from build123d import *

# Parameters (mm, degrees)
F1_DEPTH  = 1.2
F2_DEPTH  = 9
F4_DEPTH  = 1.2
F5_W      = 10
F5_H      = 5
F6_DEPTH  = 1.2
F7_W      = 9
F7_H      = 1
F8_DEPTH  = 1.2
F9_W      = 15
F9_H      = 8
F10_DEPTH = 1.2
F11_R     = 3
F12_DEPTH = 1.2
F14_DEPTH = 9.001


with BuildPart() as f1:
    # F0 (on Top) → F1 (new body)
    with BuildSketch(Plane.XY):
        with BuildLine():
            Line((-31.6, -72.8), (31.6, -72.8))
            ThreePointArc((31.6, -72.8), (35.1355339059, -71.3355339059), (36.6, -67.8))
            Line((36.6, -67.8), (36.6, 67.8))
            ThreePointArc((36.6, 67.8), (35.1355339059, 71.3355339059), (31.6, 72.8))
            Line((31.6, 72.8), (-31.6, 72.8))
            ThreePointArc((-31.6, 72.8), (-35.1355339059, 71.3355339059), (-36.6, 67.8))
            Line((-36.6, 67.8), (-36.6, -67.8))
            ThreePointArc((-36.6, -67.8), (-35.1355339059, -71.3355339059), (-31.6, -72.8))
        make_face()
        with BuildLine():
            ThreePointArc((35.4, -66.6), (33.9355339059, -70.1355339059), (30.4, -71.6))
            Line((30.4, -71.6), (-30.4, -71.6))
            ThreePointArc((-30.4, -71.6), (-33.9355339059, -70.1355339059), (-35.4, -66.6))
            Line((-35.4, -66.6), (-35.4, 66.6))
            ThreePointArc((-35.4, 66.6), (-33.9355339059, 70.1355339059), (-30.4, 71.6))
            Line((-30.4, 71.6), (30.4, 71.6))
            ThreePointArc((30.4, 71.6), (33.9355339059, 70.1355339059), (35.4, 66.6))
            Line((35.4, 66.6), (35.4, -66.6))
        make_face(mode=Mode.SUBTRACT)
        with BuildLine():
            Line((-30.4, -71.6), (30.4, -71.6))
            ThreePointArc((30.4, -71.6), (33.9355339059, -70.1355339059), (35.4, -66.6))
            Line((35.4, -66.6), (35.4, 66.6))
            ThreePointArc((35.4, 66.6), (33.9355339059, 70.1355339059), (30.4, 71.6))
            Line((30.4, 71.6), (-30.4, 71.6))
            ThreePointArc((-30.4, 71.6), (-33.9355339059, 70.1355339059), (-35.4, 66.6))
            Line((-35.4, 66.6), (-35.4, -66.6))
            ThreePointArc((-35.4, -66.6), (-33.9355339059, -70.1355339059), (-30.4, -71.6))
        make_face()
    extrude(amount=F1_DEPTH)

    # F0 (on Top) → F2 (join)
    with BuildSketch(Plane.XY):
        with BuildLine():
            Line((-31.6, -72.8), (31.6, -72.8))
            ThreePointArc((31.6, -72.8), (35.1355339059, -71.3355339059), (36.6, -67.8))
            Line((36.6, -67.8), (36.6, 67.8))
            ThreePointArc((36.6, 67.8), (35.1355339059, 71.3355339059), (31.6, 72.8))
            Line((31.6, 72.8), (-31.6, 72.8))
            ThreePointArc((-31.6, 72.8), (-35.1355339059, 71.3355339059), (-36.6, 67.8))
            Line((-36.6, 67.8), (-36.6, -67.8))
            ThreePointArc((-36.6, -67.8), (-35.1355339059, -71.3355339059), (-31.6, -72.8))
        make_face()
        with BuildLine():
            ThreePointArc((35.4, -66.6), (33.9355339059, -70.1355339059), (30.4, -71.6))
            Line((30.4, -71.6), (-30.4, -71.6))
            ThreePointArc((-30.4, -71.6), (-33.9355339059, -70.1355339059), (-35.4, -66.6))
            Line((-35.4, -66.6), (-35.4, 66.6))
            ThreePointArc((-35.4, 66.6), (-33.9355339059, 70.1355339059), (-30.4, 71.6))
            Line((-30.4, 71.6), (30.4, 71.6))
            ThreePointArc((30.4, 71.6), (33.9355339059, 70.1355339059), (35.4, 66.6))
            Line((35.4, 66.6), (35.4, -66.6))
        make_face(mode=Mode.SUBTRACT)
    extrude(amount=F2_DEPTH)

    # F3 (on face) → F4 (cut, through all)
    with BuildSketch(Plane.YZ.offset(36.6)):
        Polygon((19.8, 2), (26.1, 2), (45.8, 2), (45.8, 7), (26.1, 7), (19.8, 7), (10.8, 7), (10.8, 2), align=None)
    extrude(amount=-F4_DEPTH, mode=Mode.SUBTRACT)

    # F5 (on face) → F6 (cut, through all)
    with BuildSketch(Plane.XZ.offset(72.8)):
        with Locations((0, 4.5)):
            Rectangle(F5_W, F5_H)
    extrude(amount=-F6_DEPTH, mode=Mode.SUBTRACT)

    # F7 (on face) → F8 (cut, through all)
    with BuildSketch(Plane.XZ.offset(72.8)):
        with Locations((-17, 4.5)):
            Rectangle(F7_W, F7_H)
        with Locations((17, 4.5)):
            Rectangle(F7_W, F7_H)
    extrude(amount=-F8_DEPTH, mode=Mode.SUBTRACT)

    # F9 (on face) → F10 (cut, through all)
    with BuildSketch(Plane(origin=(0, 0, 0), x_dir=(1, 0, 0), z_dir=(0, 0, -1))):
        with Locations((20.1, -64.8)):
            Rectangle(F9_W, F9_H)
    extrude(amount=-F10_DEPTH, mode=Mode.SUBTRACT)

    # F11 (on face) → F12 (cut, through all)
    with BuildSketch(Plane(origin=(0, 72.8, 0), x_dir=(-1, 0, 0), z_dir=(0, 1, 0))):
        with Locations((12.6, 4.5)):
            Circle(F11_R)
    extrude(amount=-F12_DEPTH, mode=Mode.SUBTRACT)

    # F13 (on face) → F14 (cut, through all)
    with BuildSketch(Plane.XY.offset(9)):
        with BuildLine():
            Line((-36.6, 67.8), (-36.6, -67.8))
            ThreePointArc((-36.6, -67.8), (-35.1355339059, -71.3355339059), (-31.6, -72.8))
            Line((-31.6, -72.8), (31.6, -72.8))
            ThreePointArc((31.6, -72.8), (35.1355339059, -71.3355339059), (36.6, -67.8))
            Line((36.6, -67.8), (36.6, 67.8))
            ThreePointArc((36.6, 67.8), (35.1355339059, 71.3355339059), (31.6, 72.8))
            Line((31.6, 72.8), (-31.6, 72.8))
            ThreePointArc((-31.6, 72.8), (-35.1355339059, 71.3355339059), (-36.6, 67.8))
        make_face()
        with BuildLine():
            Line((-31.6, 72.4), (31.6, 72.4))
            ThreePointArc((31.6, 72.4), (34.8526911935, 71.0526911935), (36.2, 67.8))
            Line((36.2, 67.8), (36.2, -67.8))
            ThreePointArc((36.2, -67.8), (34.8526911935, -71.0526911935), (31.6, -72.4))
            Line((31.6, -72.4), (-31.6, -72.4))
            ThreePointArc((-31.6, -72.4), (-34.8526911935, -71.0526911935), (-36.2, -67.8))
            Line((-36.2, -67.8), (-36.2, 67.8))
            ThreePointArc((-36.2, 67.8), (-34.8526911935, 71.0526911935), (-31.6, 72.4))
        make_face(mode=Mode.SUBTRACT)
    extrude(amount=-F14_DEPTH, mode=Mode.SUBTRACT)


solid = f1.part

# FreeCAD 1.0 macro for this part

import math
import FreeCAD as App
import Part
import Sketcher

V = App.Vector


def add_polygon(sketch, points):
    """Adds a closed chain of lines whose ends are joined by coincident constraints."""
    first, n = sketch.GeometryCount, len(points)
    for a, b in zip(points, points[1:] + points[:1]):
        sketch.addGeometry(Part.LineSegment(App.Vector(*a, 0), App.Vector(*b, 0)), False)
    for i in range(n):
        sketch.addConstraint(Sketcher.Constraint("Coincident", first + i, 2, first + (i + 1) % n, 1))

doc = App.newDocument("Part")
body = doc.addObject("PartDesign::Body", "Body")

# Sketch on XY plane
sketch1 = body.newObject("Sketcher::SketchObject", "Sketch")
sketch1.AttachmentSupport = (doc.getObject("XY_Plane"), [""])
sketch1.MapMode = "FlatFace"
sketch1.addGeometry(Part.LineSegment(V(-32, -73, 0), V(32, -73, 0)), False)
sketch1.addGeometry(Part.ArcOfCircle(Part.Circle(V(32, -68, 0), V(0, 0, 1), 5), math.radians(-90), math.radians(0)), False)
sketch1.addGeometry(Part.LineSegment(V(37, -68, 0), V(37, 68, 0)), False)
sketch1.addGeometry(Part.ArcOfCircle(Part.Circle(V(32, 68, 0), V(0, 0, 1), 5), math.radians(0), math.radians(90)), False)
sketch1.addGeometry(Part.LineSegment(V(32, 73, 0), V(-32, 73, 0)), False)
sketch1.addGeometry(Part.ArcOfCircle(Part.Circle(V(-32, 68, 0), V(0, 0, 1), 5), math.radians(90), math.radians(180)), False)
sketch1.addGeometry(Part.LineSegment(V(-37, 68, 0), V(-37, -68, 0)), False)
sketch1.addGeometry(Part.ArcOfCircle(Part.Circle(V(-32, -68, 0), V(0, 0, 1), 5), math.radians(180), math.radians(270)), False)
sketch1.addConstraint(Sketcher.Constraint("Tangent", 0, 2, 1, 1))
sketch1.addConstraint(Sketcher.Constraint("Tangent", 1, 2, 2, 1))
sketch1.addConstraint(Sketcher.Constraint("Tangent", 2, 2, 3, 1))
sketch1.addConstraint(Sketcher.Constraint("Tangent", 3, 2, 4, 1))
sketch1.addConstraint(Sketcher.Constraint("Tangent", 4, 2, 5, 1))
sketch1.addConstraint(Sketcher.Constraint("Tangent", 5, 2, 6, 1))
sketch1.addConstraint(Sketcher.Constraint("Tangent", 6, 2, 7, 1))
sketch1.addConstraint(Sketcher.Constraint("Tangent", 7, 2, 0, 1))
sketch1.addConstraint(Sketcher.Constraint("Horizontal", 0))
sketch1.addConstraint(Sketcher.Constraint("Vertical", 2))
sketch1.addConstraint(Sketcher.Constraint("Horizontal", 4))
sketch1.addConstraint(Sketcher.Constraint("Vertical", 6))
sketch1.addConstraint(Sketcher.Constraint("Equal", 1, 3))
sketch1.addConstraint(Sketcher.Constraint("Equal", 3, 5))
sketch1.addConstraint(Sketcher.Constraint("Equal", 5, 7))
sketch1.addConstraint(Sketcher.Constraint("Symmetric", 1, 3, 5, 3, -1, 1))
sketch1.addConstraint(Sketcher.Constraint("Radius", 1, 5.0))
sketch1.addConstraint(Sketcher.Constraint("DistanceX", 0, 1, 0, 2, 63.2))
sketch1.addConstraint(Sketcher.Constraint("DistanceY", 2, 1, 2, 2, 135.6))
pad1 = body.newObject("PartDesign::Pad", "Pad")
pad1.Profile = sketch1
pad1.Length = 1.2

# Sketch on XY plane
sketch2 = body.newObject("Sketcher::SketchObject", "Sketch001")
sketch2.AttachmentSupport = (doc.getObject("XY_Plane"), [""])
sketch2.MapMode = "FlatFace"
sketch2.addGeometry(Part.LineSegment(V(-32, -73, 0), V(32, -73, 0)), False)
sketch2.addGeometry(Part.ArcOfCircle(Part.Circle(V(32, -68, 0), V(0, 0, 1), 5), math.radians(-90), math.radians(0)), False)
sketch2.addGeometry(Part.LineSegment(V(37, -68, 0), V(37, 68, 0)), False)
sketch2.addGeometry(Part.ArcOfCircle(Part.Circle(V(32, 68, 0), V(0, 0, 1), 5), math.radians(0), math.radians(90)), False)
sketch2.addGeometry(Part.LineSegment(V(32, 73, 0), V(-32, 73, 0)), False)
sketch2.addGeometry(Part.ArcOfCircle(Part.Circle(V(-32, 68, 0), V(0, 0, 1), 5), math.radians(90), math.radians(180)), False)
sketch2.addGeometry(Part.LineSegment(V(-37, 68, 0), V(-37, -68, 0)), False)
sketch2.addGeometry(Part.ArcOfCircle(Part.Circle(V(-32, -68, 0), V(0, 0, 1), 5), math.radians(180), math.radians(270)), False)
sketch2.addGeometry(Part.LineSegment(V(35, 67, 0), V(35, -67, 0)), False)
sketch2.addGeometry(Part.ArcOfCircle(Part.Circle(V(30, -67, 0), V(0, 0, 1), 5), math.radians(-90), math.radians(0)), False)
sketch2.addGeometry(Part.LineSegment(V(30, -72, 0), V(-30, -72, 0)), False)
sketch2.addGeometry(Part.ArcOfCircle(Part.Circle(V(-30, -67, 0), V(0, 0, 1), 5), math.radians(180), math.radians(270)), False)
sketch2.addGeometry(Part.LineSegment(V(-35, -67, 0), V(-35, 67, 0)), False)
sketch2.addGeometry(Part.ArcOfCircle(Part.Circle(V(-30, 67, 0), V(0, 0, 1), 5), math.radians(90), math.radians(180)), False)
sketch2.addGeometry(Part.LineSegment(V(-30, 72, 0), V(30, 72, 0)), False)
sketch2.addGeometry(Part.ArcOfCircle(Part.Circle(V(30, 67, 0), V(0, 0, 1), 5), math.radians(0), math.radians(90)), False)
sketch2.addConstraint(Sketcher.Constraint("Tangent", 0, 2, 1, 1))
sketch2.addConstraint(Sketcher.Constraint("Tangent", 1, 2, 2, 1))
sketch2.addConstraint(Sketcher.Constraint("Tangent", 2, 2, 3, 1))
sketch2.addConstraint(Sketcher.Constraint("Tangent", 3, 2, 4, 1))
sketch2.addConstraint(Sketcher.Constraint("Tangent", 4, 2, 5, 1))
sketch2.addConstraint(Sketcher.Constraint("Tangent", 5, 2, 6, 1))
sketch2.addConstraint(Sketcher.Constraint("Tangent", 6, 2, 7, 1))
sketch2.addConstraint(Sketcher.Constraint("Tangent", 7, 2, 0, 1))
sketch2.addConstraint(Sketcher.Constraint("Tangent", 8, 2, 9, 2))
sketch2.addConstraint(Sketcher.Constraint("Tangent", 9, 1, 10, 1))
sketch2.addConstraint(Sketcher.Constraint("Tangent", 10, 2, 11, 2))
sketch2.addConstraint(Sketcher.Constraint("Tangent", 11, 1, 12, 1))
sketch2.addConstraint(Sketcher.Constraint("Tangent", 12, 2, 13, 2))
sketch2.addConstraint(Sketcher.Constraint("Tangent", 13, 1, 14, 1))
sketch2.addConstraint(Sketcher.Constraint("Tangent", 14, 2, 15, 2))
sketch2.addConstraint(Sketcher.Constraint("Tangent", 15, 1, 8, 1))
sketch2.addConstraint(Sketcher.Constraint("Horizontal", 0))
sketch2.addConstraint(Sketcher.Constraint("Vertical", 2))
sketch2.addConstraint(Sketcher.Constraint("Horizontal", 4))
sketch2.addConstraint(Sketcher.Constraint("Vertical", 6))
sketch2.addConstraint(Sketcher.Constraint("Vertical", 8))
sketch2.addConstraint(Sketcher.Constraint("Horizontal", 10))
sketch2.addConstraint(Sketcher.Constraint("Vertical", 12))
sketch2.addConstraint(Sketcher.Constraint("Horizontal", 14))
sketch2.addConstraint(Sketcher.Constraint("Equal", 1, 3))
sketch2.addConstraint(Sketcher.Constraint("Equal", 3, 5))
sketch2.addConstraint(Sketcher.Constraint("Equal", 5, 7))
sketch2.addConstraint(Sketcher.Constraint("Equal", 7, 9))
sketch2.addConstraint(Sketcher.Constraint("Equal", 9, 11))
sketch2.addConstraint(Sketcher.Constraint("Equal", 11, 13))
sketch2.addConstraint(Sketcher.Constraint("Equal", 13, 15))
sketch2.addConstraint(Sketcher.Constraint("Symmetric", 1, 3, 5, 3, -1, 1))
sketch2.addConstraint(Sketcher.Constraint("Symmetric", 9, 3, 13, 3, -1, 1))
sketch2.addConstraint(Sketcher.Constraint("Radius", 1, 5.0))
sketch2.addConstraint(Sketcher.Constraint("DistanceX", 0, 1, 0, 2, 63.2))
sketch2.addConstraint(Sketcher.Constraint("DistanceX", 10, 2, 10, 1, 60.8))
sketch2.addConstraint(Sketcher.Constraint("DistanceY", 2, 1, 2, 2, 135.6))
sketch2.addConstraint(Sketcher.Constraint("DistanceY", 8, 2, 8, 1, 133.2))
pad2 = body.newObject("PartDesign::Pad", "Pad001")
pad2.Profile = sketch2
pad2.Length = 9

# Sketch on YZ plane
sketch3 = body.newObject("Sketcher::SketchObject", "Sketch002")
sketch3.AttachmentSupport = (doc.getObject("YZ_Plane"), [""])
sketch3.MapMode = "FlatFace"
sketch3.AttachmentOffset = App.Placement(V(0, 0, 36.6), App.Rotation())
add_polygon(sketch3, [(46, 2), (46, 7), (11, 7), (11, 2)])  # lines 0-3
sketch3.addConstraint(Sketcher.Constraint("Vertical", 0))
sketch3.addConstraint(Sketcher.Constraint("Horizontal", 1))
sketch3.addConstraint(Sketcher.Constraint("Vertical", 2))
sketch3.addConstraint(Sketcher.Constraint("Horizontal", 3))
sketch3.addConstraint(Sketcher.Constraint("DistanceX", 1, 2, 1, 1, 35.0))
sketch3.addConstraint(Sketcher.Constraint("DistanceY", 0, 1, 0, 2, 5.0))
sketch3.addConstraint(Sketcher.Constraint("DistanceY", -1, 1, 0, 2, 7.0))
sketch3.addConstraint(Sketcher.Constraint("DistanceX", -1, 1, 0, 2, 45.8))
pocket1 = body.newObject("PartDesign::Pocket", "Pocket")
pocket1.Profile = sketch3
pocket1.Length = 1.2

# Sketch on XZ plane
sketch4 = body.newObject("Sketcher::SketchObject", "Sketch003")
sketch4.AttachmentSupport = (doc.getObject("XZ_Plane"), [""])
sketch4.MapMode = "FlatFace"
sketch4.AttachmentOffset = App.Placement(V(0, 0, 72.8), App.Rotation())
add_polygon(sketch4, [(-5, 7), (-5, 2), (5, 2), (5, 7)])  # lines 0-3
sketch4.addConstraint(Sketcher.Constraint("Vertical", 0))
sketch4.addConstraint(Sketcher.Constraint("Horizontal", 1))
sketch4.addConstraint(Sketcher.Constraint("Vertical", 2))
sketch4.addConstraint(Sketcher.Constraint("Horizontal", 3))
sketch4.addConstraint(Sketcher.Constraint("DistanceX", 1, 1, 1, 2, 10.0))
sketch4.addConstraint(Sketcher.Constraint("DistanceY", 0, 2, 0, 1, 5.0))
sketch4.addConstraint(Sketcher.Constraint("DistanceX", 0, 2, -1, 1, 5.0))
sketch4.addConstraint(Sketcher.Constraint("DistanceY", -1, 1, 0, 2, 2.0))
pocket2 = body.newObject("PartDesign::Pocket", "Pocket001")
pocket2.Profile = sketch4
pocket2.Length = 1.2

# Sketch on XZ plane
sketch5 = body.newObject("Sketcher::SketchObject", "Sketch004")
sketch5.AttachmentSupport = (doc.getObject("XZ_Plane"), [""])
sketch5.MapMode = "FlatFace"
sketch5.AttachmentOffset = App.Placement(V(0, 0, 72.8), App.Rotation())
add_polygon(sketch5, [(-21.5, 5), (-21.5, 4), (-12.5, 4), (-12.5, 5)])  # lines 0-3
add_polygon(sketch5, [(12.5, 5), (12.5, 4), (21.5, 4), (21.5, 5)])  # lines 4-7
sketch5.addConstraint(Sketcher.Constraint("Vertical", 0))
sketch5.addConstraint(Sketcher.Constraint("Horizontal", 1))
sketch5.addConstraint(Sketcher.Constraint("Vertical", 2))
sketch5.addConstraint(Sketcher.Constraint("Horizontal", 3))
sketch5.addConstraint(Sketcher.Constraint("Vertical", 4))
sketch5.addConstraint(Sketcher.Constraint("Horizontal", 5))
sketch5.addConstraint(Sketcher.Constraint("Vertical", 6))
sketch5.addConstraint(Sketcher.Constraint("Horizontal", 7))
sketch5.addConstraint(Sketcher.Constraint("Symmetric", 1, 2, 4, 2, -2))
sketch5.addConstraint(Sketcher.Constraint("Symmetric", 3, 2, 6, 2, -2))
sketch5.addConstraint(Sketcher.Constraint("DistanceX", 1, 1, 1, 2, 9.0))
sketch5.addConstraint(Sketcher.Constraint("DistanceY", 0, 2, 0, 1, 1.0))
sketch5.addConstraint(Sketcher.Constraint("DistanceY", -1, 1, 0, 2, 4.0))
sketch5.addConstraint(Sketcher.Constraint("DistanceX", 1, 2, 4, 2, 25.0))
pocket3 = body.newObject("PartDesign::Pocket", "Pocket002")
pocket3.Profile = sketch5
pocket3.Length = 1.2

# Sketch on XY plane
sketch6 = body.newObject("Sketcher::SketchObject", "Sketch005")
sketch6.AttachmentSupport = (doc.getObject("XY_Plane"), [""])
sketch6.MapMode = "FlatFace"
add_polygon(sketch6, [(13, 61), (13, 69), (28, 69), (28, 61)])  # lines 0-3
sketch6.addConstraint(Sketcher.Constraint("Vertical", 0))
sketch6.addConstraint(Sketcher.Constraint("Horizontal", 1))
sketch6.addConstraint(Sketcher.Constraint("Vertical", 2))
sketch6.addConstraint(Sketcher.Constraint("Horizontal", 3))
sketch6.addConstraint(Sketcher.Constraint("DistanceX", 1, 1, 1, 2, 15.0))
sketch6.addConstraint(Sketcher.Constraint("DistanceY", 0, 1, 0, 2, 8.0))
sketch6.addConstraint(Sketcher.Constraint("DistanceX", -1, 1, 0, 2, 12.6))
sketch6.addConstraint(Sketcher.Constraint("DistanceY", -1, 1, 0, 2, 68.8))
pocket4 = body.newObject("PartDesign::Pocket", "Pocket003")
pocket4.Profile = sketch6
pocket4.Type = "ThroughAll"
pocket4.Reversed = True

# Sketch on XZ plane
sketch7 = body.newObject("Sketcher::SketchObject", "Sketch006")
sketch7.AttachmentSupport = (doc.getObject("XZ_Plane"), [""])
sketch7.MapMode = "FlatFace"
sketch7.AttachmentOffset = App.Placement(V(0, 0, -72.8), App.Rotation())
sketch7.addGeometry(Part.Circle(V(-12.6, 4.5, 0), V(0, 0, 1), 3), False)
sketch7.addConstraint(Sketcher.Constraint("Diameter", 0, 6.0))
sketch7.addConstraint(Sketcher.Constraint("DistanceX", 0, 3, -1, 1, 12.6))
sketch7.addConstraint(Sketcher.Constraint("DistanceY", -1, 1, 0, 3, 4.5))
pocket5 = body.newObject("PartDesign::Pocket", "Pocket004")
pocket5.Profile = sketch7
pocket5.Length = 1.2
pocket5.Reversed = True

# Sketch on XY plane
sketch8 = body.newObject("Sketcher::SketchObject", "Sketch007")
sketch8.AttachmentSupport = (doc.getObject("XY_Plane"), [""])
sketch8.MapMode = "FlatFace"
sketch8.AttachmentOffset = App.Placement(V(0, 0, 9), App.Rotation())
sketch8.addGeometry(Part.LineSegment(V(-36.6, 67.8, 0), V(-36.6, -67.8, 0)), False)
sketch8.addGeometry(Part.ArcOfCircle(Part.Circle(V(-31.6, -67.8, 0), V(0, 0, 1), 5), math.radians(180), math.radians(270)), False)
sketch8.addGeometry(Part.LineSegment(V(-31.6, -72.8, 0), V(31.6, -72.8, 0)), False)
sketch8.addGeometry(Part.ArcOfCircle(Part.Circle(V(31.6, -67.8, 0), V(0, 0, 1), 5), math.radians(-90), math.radians(0)), False)
sketch8.addGeometry(Part.LineSegment(V(36.6, -67.8, 0), V(36.6, 67.8, 0)), False)
sketch8.addGeometry(Part.ArcOfCircle(Part.Circle(V(31.6, 67.8, 0), V(0, 0, 1), 5), math.radians(0), math.radians(90)), False)
sketch8.addGeometry(Part.LineSegment(V(31.6, 72.8, 0), V(-31.6, 72.8, 0)), False)
sketch8.addGeometry(Part.ArcOfCircle(Part.Circle(V(-31.6, 67.8, 0), V(0, 0, 1), 5), math.radians(90), math.radians(180)), False)
sketch8.addGeometry(Part.ArcOfCircle(Part.Circle(V(-31.6, 67.8, 0), V(0, 0, 1), 4.6), math.radians(90), math.radians(180)), False)
sketch8.addGeometry(Part.LineSegment(V(-31.6, 72.4, 0), V(31.6, 72.4, 0)), False)
sketch8.addGeometry(Part.ArcOfCircle(Part.Circle(V(31.6, 67.8, 0), V(0, 0, 1), 4.6), math.radians(0), math.radians(90)), False)
sketch8.addGeometry(Part.LineSegment(V(36.2, 67.8, 0), V(36.2, -67.8, 0)), False)
sketch8.addGeometry(Part.ArcOfCircle(Part.Circle(V(31.6, -67.8, 0), V(0, 0, 1), 4.6), math.radians(-90), math.radians(0)), False)
sketch8.addGeometry(Part.LineSegment(V(31.6, -72.4, 0), V(-31.6, -72.4, 0)), False)
sketch8.addGeometry(Part.ArcOfCircle(Part.Circle(V(-31.6, -67.8, 0), V(0, 0, 1), 4.6), math.radians(180), math.radians(270)), False)
sketch8.addGeometry(Part.LineSegment(V(-36.2, -67.8, 0), V(-36.2, 67.8, 0)), False)
sketch8.addConstraint(Sketcher.Constraint("Tangent", 0, 2, 1, 1))
sketch8.addConstraint(Sketcher.Constraint("Tangent", 1, 2, 2, 1))
sketch8.addConstraint(Sketcher.Constraint("Tangent", 2, 2, 3, 1))
sketch8.addConstraint(Sketcher.Constraint("Tangent", 3, 2, 4, 1))
sketch8.addConstraint(Sketcher.Constraint("Tangent", 4, 2, 5, 1))
sketch8.addConstraint(Sketcher.Constraint("Tangent", 5, 2, 6, 1))
sketch8.addConstraint(Sketcher.Constraint("Tangent", 6, 2, 7, 1))
sketch8.addConstraint(Sketcher.Constraint("Tangent", 7, 2, 0, 1))
sketch8.addConstraint(Sketcher.Constraint("Tangent", 8, 1, 9, 1))
sketch8.addConstraint(Sketcher.Constraint("Tangent", 9, 2, 10, 2))
sketch8.addConstraint(Sketcher.Constraint("Tangent", 10, 1, 11, 1))
sketch8.addConstraint(Sketcher.Constraint("Tangent", 11, 2, 12, 2))
sketch8.addConstraint(Sketcher.Constraint("Tangent", 12, 1, 13, 1))
sketch8.addConstraint(Sketcher.Constraint("Tangent", 13, 2, 14, 2))
sketch8.addConstraint(Sketcher.Constraint("Tangent", 14, 1, 15, 1))
sketch8.addConstraint(Sketcher.Constraint("Tangent", 15, 2, 8, 2))
sketch8.addConstraint(Sketcher.Constraint("Vertical", 0))
sketch8.addConstraint(Sketcher.Constraint("Horizontal", 2))
sketch8.addConstraint(Sketcher.Constraint("Vertical", 4))
sketch8.addConstraint(Sketcher.Constraint("Horizontal", 6))
sketch8.addConstraint(Sketcher.Constraint("Horizontal", 9))
sketch8.addConstraint(Sketcher.Constraint("Vertical", 11))
sketch8.addConstraint(Sketcher.Constraint("Horizontal", 13))
sketch8.addConstraint(Sketcher.Constraint("Vertical", 15))
sketch8.addConstraint(Sketcher.Constraint("Coincident", 8, 3, 7, 3))
sketch8.addConstraint(Sketcher.Constraint("Coincident", 10, 3, 5, 3))
sketch8.addConstraint(Sketcher.Constraint("Coincident", 12, 3, 3, 3))
sketch8.addConstraint(Sketcher.Constraint("Equal", 1, 3))
sketch8.addConstraint(Sketcher.Constraint("Equal", 3, 5))
sketch8.addConstraint(Sketcher.Constraint("Equal", 5, 7))
sketch8.addConstraint(Sketcher.Constraint("Equal", 12, 14))
sketch8.addConstraint(Sketcher.Constraint("Symmetric", 1, 3, 5, 3, -1, 1))
sketch8.addConstraint(Sketcher.Constraint("Radius", 1, 5.0))
sketch8.addConstraint(Sketcher.Constraint("Radius", 8, 4.6))
sketch8.addConstraint(Sketcher.Constraint("DistanceX", 2, 1, 2, 2, 63.2))
sketch8.addConstraint(Sketcher.Constraint("DistanceY", 0, 2, 0, 1, 135.6))
pocket6 = body.newObject("PartDesign::Pocket", "Pocket005")
pocket6.Profile = sketch8
pocket6.Type = "ThroughAll"

doc.recompute()
